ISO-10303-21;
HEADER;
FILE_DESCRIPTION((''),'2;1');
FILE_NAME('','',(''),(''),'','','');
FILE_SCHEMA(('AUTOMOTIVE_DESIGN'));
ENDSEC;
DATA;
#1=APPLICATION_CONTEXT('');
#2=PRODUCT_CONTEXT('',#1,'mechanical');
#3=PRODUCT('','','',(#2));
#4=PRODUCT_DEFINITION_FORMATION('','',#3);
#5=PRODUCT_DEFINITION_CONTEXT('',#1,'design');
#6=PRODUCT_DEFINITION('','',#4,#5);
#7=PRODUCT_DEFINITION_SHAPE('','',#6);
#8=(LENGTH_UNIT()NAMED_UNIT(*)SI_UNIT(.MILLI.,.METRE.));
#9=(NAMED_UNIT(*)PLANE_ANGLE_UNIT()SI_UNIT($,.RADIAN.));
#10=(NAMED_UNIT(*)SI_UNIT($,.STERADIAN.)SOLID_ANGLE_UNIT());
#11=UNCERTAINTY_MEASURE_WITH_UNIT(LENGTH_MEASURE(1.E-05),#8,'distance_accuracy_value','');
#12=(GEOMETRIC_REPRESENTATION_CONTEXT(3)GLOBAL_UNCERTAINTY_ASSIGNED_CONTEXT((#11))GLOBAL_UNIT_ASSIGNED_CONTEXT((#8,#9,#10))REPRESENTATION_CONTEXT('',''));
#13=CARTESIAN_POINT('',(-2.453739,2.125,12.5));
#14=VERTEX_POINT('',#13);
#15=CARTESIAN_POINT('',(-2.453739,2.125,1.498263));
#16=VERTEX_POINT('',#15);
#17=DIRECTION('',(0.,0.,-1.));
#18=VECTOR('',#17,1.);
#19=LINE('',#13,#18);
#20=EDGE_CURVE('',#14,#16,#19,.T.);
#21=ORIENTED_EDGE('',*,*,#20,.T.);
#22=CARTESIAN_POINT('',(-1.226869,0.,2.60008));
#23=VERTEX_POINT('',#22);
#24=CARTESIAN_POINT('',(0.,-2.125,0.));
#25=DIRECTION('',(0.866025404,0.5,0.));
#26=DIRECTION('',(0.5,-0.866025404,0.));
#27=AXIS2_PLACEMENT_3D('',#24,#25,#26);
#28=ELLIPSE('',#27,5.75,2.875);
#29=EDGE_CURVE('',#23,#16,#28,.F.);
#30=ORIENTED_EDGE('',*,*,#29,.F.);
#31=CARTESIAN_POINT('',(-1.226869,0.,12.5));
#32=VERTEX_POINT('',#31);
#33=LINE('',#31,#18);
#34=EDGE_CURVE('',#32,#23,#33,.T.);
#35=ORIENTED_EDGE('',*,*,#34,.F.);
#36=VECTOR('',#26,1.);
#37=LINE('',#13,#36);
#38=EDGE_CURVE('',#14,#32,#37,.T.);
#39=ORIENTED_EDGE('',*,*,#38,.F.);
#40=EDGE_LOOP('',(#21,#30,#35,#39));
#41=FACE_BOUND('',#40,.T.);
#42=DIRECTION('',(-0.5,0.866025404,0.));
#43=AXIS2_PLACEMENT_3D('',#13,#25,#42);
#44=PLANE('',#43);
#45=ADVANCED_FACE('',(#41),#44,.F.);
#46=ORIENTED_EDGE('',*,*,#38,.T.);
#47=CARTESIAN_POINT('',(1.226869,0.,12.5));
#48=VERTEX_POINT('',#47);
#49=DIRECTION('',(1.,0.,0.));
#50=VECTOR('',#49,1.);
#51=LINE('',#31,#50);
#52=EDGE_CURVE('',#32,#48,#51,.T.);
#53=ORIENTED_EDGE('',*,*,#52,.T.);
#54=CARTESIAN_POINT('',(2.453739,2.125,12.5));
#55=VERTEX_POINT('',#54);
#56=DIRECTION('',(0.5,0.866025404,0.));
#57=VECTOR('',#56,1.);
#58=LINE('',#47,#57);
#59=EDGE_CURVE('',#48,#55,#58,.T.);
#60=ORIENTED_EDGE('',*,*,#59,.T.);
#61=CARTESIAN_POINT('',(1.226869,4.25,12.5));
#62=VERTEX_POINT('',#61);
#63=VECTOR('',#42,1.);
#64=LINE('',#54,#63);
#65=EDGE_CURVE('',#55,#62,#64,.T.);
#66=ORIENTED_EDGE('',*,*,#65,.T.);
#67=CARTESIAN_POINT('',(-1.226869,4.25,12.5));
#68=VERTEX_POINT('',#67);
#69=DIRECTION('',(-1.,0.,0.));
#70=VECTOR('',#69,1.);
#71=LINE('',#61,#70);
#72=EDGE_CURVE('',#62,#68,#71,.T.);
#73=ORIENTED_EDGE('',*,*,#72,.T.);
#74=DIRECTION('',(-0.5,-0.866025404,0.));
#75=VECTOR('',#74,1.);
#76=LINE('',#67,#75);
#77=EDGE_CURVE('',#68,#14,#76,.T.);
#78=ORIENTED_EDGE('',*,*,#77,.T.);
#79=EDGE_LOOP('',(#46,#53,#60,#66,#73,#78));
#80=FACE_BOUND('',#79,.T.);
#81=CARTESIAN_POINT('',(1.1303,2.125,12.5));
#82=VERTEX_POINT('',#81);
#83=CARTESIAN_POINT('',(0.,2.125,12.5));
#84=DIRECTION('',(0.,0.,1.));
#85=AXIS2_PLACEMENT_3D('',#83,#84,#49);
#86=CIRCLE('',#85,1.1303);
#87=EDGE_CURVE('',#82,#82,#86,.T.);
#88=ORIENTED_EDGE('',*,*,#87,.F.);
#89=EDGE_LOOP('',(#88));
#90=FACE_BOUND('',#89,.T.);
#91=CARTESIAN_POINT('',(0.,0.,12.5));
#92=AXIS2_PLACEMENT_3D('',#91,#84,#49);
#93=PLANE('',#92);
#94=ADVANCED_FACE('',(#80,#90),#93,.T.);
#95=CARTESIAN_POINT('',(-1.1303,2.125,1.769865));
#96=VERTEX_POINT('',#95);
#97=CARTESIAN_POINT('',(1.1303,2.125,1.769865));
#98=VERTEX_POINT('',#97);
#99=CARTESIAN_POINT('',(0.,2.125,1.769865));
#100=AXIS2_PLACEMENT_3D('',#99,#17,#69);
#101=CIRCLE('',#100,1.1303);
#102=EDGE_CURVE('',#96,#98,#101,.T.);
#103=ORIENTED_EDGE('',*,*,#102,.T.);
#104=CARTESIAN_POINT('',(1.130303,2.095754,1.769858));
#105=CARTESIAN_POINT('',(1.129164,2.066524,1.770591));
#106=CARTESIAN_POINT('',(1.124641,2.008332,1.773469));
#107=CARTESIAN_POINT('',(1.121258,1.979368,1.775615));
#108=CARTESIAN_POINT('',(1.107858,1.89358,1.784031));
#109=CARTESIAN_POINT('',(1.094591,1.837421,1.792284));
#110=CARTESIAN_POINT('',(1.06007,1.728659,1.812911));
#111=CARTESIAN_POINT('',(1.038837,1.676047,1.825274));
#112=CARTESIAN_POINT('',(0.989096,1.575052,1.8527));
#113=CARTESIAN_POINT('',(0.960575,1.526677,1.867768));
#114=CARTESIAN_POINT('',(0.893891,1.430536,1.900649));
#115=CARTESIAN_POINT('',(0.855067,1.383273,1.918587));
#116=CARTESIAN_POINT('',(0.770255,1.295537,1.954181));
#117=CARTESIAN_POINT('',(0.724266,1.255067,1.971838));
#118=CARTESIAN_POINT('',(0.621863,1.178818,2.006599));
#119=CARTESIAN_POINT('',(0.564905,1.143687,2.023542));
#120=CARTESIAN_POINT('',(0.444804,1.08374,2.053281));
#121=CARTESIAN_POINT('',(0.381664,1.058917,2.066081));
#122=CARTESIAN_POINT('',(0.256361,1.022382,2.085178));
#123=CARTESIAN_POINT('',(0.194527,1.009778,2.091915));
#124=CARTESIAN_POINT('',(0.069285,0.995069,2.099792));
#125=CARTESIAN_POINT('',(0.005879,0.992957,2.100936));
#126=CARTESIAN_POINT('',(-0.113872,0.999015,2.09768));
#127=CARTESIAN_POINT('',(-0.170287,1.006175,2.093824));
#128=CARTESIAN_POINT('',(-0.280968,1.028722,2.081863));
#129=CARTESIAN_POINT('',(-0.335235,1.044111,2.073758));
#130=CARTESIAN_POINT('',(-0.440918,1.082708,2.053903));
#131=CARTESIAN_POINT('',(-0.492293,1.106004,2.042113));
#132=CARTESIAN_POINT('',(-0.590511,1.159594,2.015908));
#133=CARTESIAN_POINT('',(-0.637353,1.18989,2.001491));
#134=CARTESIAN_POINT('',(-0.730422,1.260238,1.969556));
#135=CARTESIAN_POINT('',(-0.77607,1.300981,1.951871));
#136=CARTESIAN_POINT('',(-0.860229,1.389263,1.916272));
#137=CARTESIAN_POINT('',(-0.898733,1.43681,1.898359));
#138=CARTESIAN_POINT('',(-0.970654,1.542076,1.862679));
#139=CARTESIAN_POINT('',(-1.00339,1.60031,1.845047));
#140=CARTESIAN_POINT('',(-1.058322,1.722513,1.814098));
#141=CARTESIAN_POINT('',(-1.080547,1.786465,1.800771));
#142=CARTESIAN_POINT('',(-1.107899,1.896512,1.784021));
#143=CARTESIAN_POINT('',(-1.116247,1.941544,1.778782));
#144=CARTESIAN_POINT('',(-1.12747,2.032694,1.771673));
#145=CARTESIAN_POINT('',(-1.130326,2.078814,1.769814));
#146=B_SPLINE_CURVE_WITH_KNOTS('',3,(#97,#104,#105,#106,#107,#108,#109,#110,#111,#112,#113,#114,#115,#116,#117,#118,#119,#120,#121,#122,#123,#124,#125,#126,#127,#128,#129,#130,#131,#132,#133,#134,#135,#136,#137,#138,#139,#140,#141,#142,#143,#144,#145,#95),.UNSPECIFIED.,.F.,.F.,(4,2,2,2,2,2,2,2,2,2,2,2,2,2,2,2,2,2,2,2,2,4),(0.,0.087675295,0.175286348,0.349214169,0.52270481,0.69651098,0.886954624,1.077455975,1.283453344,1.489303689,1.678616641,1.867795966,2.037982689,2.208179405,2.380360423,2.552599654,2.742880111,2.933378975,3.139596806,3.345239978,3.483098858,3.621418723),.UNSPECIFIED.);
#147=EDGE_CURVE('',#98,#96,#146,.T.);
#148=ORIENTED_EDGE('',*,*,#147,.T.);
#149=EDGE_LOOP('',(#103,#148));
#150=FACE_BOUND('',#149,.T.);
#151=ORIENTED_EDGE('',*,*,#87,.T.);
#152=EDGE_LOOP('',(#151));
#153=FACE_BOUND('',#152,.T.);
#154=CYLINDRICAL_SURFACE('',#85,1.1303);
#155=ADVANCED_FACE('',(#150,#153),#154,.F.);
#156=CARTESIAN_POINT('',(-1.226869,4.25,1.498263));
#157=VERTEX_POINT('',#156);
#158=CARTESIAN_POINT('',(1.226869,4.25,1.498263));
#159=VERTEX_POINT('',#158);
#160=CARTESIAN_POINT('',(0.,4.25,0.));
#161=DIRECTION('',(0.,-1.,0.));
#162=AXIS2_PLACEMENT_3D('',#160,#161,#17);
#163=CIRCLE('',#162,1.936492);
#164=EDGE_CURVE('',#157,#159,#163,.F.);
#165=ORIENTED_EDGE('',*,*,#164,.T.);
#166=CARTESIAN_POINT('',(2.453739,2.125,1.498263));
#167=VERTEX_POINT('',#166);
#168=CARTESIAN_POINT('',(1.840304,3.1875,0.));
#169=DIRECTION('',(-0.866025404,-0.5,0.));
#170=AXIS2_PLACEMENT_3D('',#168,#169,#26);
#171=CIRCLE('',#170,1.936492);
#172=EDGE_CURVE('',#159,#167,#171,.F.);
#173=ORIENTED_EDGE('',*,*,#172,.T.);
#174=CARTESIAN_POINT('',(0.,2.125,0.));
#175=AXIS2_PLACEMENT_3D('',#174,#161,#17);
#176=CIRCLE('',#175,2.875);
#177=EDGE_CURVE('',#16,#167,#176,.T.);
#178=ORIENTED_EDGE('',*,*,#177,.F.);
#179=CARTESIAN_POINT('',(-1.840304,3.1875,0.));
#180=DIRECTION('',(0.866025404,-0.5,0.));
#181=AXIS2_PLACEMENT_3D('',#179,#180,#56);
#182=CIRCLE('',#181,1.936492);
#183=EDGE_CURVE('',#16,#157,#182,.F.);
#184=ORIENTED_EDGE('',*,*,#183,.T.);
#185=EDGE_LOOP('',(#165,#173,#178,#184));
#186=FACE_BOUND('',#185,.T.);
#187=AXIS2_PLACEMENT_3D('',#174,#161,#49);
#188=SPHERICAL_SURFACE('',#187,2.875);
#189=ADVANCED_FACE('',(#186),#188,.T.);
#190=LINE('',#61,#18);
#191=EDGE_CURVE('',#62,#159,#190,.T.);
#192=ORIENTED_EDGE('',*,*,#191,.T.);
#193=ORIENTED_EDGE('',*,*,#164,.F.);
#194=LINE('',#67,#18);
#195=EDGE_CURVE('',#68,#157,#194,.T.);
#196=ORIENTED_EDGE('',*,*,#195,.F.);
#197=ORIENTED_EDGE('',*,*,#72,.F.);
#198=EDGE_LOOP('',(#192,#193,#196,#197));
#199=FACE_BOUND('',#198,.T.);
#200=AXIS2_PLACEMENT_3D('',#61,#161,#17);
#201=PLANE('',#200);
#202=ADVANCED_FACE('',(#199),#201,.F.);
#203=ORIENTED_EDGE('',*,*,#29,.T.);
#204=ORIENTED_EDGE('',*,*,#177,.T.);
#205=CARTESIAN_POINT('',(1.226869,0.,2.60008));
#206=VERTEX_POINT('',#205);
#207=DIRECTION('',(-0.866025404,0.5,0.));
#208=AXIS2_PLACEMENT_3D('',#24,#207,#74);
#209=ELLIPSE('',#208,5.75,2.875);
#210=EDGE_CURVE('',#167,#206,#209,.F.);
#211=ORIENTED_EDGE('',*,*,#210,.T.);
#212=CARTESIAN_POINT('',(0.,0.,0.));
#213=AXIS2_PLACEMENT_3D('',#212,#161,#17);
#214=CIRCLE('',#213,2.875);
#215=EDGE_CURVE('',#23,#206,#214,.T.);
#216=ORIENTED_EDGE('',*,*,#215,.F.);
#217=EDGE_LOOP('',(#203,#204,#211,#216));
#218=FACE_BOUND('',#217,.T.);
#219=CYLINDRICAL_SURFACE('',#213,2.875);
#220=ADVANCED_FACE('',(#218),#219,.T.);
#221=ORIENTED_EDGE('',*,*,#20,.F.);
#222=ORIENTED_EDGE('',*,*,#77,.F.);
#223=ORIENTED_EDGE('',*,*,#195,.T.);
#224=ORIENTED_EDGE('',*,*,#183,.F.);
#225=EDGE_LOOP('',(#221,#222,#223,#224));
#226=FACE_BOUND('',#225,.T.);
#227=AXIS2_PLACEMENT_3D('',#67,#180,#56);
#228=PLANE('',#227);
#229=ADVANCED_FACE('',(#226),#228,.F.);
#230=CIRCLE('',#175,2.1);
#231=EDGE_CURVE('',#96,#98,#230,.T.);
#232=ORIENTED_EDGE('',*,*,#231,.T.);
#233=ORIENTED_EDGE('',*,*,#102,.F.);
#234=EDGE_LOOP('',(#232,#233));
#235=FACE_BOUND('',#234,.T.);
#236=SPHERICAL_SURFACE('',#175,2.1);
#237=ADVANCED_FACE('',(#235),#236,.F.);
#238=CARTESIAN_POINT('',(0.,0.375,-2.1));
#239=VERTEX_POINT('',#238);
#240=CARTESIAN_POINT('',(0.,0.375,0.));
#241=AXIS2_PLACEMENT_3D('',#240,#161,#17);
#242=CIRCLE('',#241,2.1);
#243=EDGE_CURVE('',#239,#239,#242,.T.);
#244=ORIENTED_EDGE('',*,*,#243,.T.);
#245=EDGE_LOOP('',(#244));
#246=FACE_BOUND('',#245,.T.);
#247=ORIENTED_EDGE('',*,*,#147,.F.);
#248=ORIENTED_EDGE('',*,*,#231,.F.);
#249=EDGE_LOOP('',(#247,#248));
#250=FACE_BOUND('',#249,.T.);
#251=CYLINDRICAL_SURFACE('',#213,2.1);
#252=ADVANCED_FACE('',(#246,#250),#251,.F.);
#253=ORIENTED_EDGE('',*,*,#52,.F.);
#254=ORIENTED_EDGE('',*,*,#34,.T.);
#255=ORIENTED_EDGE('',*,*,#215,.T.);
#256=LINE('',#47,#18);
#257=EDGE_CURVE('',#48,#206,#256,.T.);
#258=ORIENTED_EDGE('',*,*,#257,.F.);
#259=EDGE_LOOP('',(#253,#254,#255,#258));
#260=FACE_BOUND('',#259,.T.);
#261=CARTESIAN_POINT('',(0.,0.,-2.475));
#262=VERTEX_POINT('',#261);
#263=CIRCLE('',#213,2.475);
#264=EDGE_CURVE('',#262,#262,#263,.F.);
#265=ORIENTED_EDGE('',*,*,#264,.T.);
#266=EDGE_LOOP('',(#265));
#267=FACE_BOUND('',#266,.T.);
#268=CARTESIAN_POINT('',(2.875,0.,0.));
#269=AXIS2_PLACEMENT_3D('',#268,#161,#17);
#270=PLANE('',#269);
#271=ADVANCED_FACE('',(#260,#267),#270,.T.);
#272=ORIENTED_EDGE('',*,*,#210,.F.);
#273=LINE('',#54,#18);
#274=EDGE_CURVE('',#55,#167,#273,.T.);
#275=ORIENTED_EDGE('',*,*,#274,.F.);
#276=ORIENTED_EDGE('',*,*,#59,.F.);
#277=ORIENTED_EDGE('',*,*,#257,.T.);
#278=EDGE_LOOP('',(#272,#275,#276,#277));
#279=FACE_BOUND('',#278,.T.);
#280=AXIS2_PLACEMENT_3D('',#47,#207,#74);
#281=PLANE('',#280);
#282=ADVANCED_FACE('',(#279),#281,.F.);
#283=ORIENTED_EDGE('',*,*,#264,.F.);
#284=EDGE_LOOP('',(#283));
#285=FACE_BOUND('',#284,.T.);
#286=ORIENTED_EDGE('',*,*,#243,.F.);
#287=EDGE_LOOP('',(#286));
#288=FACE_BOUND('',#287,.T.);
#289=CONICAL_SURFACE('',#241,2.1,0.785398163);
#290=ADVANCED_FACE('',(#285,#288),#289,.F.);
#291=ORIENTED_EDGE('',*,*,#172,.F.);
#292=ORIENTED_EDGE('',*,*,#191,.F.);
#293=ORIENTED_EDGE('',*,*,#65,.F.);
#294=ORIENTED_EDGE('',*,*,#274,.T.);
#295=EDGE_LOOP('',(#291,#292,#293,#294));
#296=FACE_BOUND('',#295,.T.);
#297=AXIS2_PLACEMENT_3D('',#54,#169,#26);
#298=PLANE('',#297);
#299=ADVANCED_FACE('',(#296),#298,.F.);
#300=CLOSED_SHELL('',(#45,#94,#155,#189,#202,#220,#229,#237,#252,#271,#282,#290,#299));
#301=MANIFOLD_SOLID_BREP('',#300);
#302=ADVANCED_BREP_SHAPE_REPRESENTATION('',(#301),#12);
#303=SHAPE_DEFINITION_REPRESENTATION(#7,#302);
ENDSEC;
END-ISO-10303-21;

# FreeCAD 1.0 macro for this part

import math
import FreeCAD as App
import Part
import Sketcher
Q = App.Units.Quantity


def edges_at(feature, points):
    """Names of the edges that pass closest to the given points."""
    edges = feature.Shape.Edges
    near = lambda p: min(range(len(edges)), key=lambda i: edges[i].distToShape(Part.Vertex(*p))[0])
    return sorted({f"Edge{near(p) + 1}" for p in points})

doc = App.newDocument("Part")
body = doc.addObject("PartDesign::Body", "Body")

sketch1 = body.newObject("Sketcher::SketchObject", "Sketch")
sketch1.AttachmentSupport = (doc.getObject("XY_Plane"), [""])
sketch1.MapMode = "FlatFace"
sketch1.addGeometry([
    Part.LineSegment(App.Vector(2.9, 0, 0), App.Vector(2.9, 2.1, 0)),
    Part.ArcOfCircle(Part.Circle(App.Vector(0, 2.1, 0), App.Vector(0, 0, 1), 2.9), math.radians(0), math.radians(90)),
    Part.LineSegment(App.Vector(0, 5, 0), App.Vector(0, 0, 0)),
    Part.LineSegment(App.Vector(0, 0, 0), App.Vector(2.9, 0, 0)),
], False)
sketch1.addConstraint([
    Sketcher.Constraint("Tangent", 0, 2, 1, 1),
    Sketcher.Constraint("Coincident", 1, 2, 2, 1),
    Sketcher.Constraint("Coincident", 2, 2, 3, 1),
    Sketcher.Constraint("Coincident", 3, 2, 0, 1),
    Sketcher.Constraint("Vertical", 0),
    Sketcher.Constraint("Vertical", 2),
    Sketcher.Constraint("Horizontal", 3),
    Sketcher.Constraint("Coincident", 2, 2, -1, 1),
    Sketcher.Constraint("PointOnObject", 1, 3, -2),
    Sketcher.Constraint("DistanceY", 2, 2, 2, 1, 5.0),
    Sketcher.Constraint("Radius", 1, 2.875),
])
revolution = body.newObject("PartDesign::Revolution", "Revolution")
revolution.Profile = sketch1
revolution.ReferenceAxis = (sketch1, ["V_Axis"])
revolution.Angle = 360

sketch2 = body.newObject("Sketcher::SketchObject", "Sketch001")
sketch2.AttachmentSupport = (doc.getObject("XY_Plane"), [""])
sketch2.MapMode = "FlatFace"
sketch2.addGeometry([
    Part.LineSegment(App.Vector(-1.2, 0, 0), App.Vector(1.2, 0, 0)),
    Part.LineSegment(App.Vector(1.2, 0, 0), App.Vector(2.5, 2.1, 0)),
    Part.LineSegment(App.Vector(2.5, 2.1, 0), App.Vector(1.2, 4.2, 0)),
    Part.LineSegment(App.Vector(1.2, 4.2, 0), App.Vector(-1.2, 4.2, 0)),
    Part.LineSegment(App.Vector(-1.2, 4.2, 0), App.Vector(-2.5, 2.1, 0)),
    Part.LineSegment(App.Vector(-2.5, 2.1, 0), App.Vector(-1.2, 0, 0)),
], False)
sketch2.addConstraint([
    Sketcher.Constraint("Coincident", 0, 2, 1, 1),
    Sketcher.Constraint("Coincident", 1, 2, 2, 1),
    Sketcher.Constraint("Coincident", 2, 2, 3, 1),
    Sketcher.Constraint("Coincident", 3, 2, 4, 1),
    Sketcher.Constraint("Coincident", 4, 2, 5, 1),
    Sketcher.Constraint("Coincident", 5, 2, 0, 1),
    Sketcher.Constraint("Horizontal", 0),
    Sketcher.Constraint("Horizontal", 3),
    Sketcher.Constraint("Symmetric", 0, 2, 5, 2, -1, 1),
    Sketcher.Constraint("Symmetric", 1, 2, 4, 2, -2),
    Sketcher.Constraint("Parallel", 1, 4),
    Sketcher.Constraint("Parallel", 2, 5),
    Sketcher.Constraint("Vertical", 0, 2, 2, 2),
    Sketcher.Constraint("Angle", 1, Q("60 deg")),
    Sketcher.Constraint("DistanceY", -1, 1, 2, 2, 4.25),
    Sketcher.Constraint("DistanceX", 0, 1, 0, 2, 2.453739),
])
pad1 = body.newObject("PartDesign::Pad", "Pad")
pad1.Profile = sketch2
pad1.Length = 12.5

sketch3 = body.newObject("Sketcher::SketchObject", "Sketch002")
sketch3.AttachmentSupport = (doc.getObject("XY_Plane"), [""])
sketch3.MapMode = "FlatFace"
sketch3.AttachmentOffset = App.Placement(App.Vector(0, 0, 12.5), App.Rotation())
sketch3.addGeometry(Part.Circle(App.Vector(0, 2.1, 0), App.Vector(0, 0, 1), 1.1), False)
sketch3.addConstraint([
    Sketcher.Constraint("PointOnObject", 0, 3, -2),
    Sketcher.Constraint("Diameter", 0, 2.2606),
    Sketcher.Constraint("DistanceY", -1, 1, 0, 3, 2.125),
])
doc.recompute()
hole = body.newObject("PartDesign::Hole", "Hole")
hole.Profile = sketch3
hole.ThreadType = "None"
hole.Diameter = 2.2606
hole.DepthType = "Dimension"
hole.Depth = 12
hole.DrillPoint = "Angled"
hole.DrillPointAngle = 118

sketch4 = body.newObject("Sketcher::SketchObject", "Sketch003")
sketch4.AttachmentSupport = (doc.getObject("YZ_Plane"), [""])
sketch4.MapMode = "FlatFace"
sketch4.addGeometry([
    Part.LineSegment(App.Vector(0, -2.1, 0), App.Vector(2.1, -2.1, 0)),
    Part.ArcOfCircle(Part.Circle(App.Vector(2.1, 0, 0), App.Vector(0, 0, 1), 2.1), math.radians(-90), math.radians(0)),
    Part.LineSegment(App.Vector(4.2, 0, 0), App.Vector(0, 0, 0)),
    Part.LineSegment(App.Vector(0, 0, 0), App.Vector(0, -2.1, 0)),
], False)
sketch4.addConstraint([
    Sketcher.Constraint("Tangent", 0, 2, 1, 1),
    Sketcher.Constraint("Coincident", 1, 2, 2, 1),
    Sketcher.Constraint("Coincident", 2, 2, 3, 1),
    Sketcher.Constraint("Coincident", 3, 2, 0, 1),
    Sketcher.Constraint("Horizontal", 0),
    Sketcher.Constraint("Horizontal", 2),
    Sketcher.Constraint("Vertical", 3),
    Sketcher.Constraint("Coincident", 2, 2, -1, 1),
    Sketcher.Constraint("PointOnObject", 1, 3, -1),
    Sketcher.Constraint("Radius", 1, 2.1),
    Sketcher.Constraint("DistanceX", 0, 1, 0, 2, 2.125),
])
groove = body.newObject("PartDesign::Groove", "Groove")
groove.Profile = sketch4
groove.ReferenceAxis = (sketch4, ["H_Axis"])
groove.Angle = 360
doc.recompute()

chamfer = body.newObject("PartDesign::Chamfer", "Chamfer")
chamfer.Base = (groove, edges_at(groove, [(0, 0, 2.1)]))
chamfer.Size = 0.375

doc.recompute()
